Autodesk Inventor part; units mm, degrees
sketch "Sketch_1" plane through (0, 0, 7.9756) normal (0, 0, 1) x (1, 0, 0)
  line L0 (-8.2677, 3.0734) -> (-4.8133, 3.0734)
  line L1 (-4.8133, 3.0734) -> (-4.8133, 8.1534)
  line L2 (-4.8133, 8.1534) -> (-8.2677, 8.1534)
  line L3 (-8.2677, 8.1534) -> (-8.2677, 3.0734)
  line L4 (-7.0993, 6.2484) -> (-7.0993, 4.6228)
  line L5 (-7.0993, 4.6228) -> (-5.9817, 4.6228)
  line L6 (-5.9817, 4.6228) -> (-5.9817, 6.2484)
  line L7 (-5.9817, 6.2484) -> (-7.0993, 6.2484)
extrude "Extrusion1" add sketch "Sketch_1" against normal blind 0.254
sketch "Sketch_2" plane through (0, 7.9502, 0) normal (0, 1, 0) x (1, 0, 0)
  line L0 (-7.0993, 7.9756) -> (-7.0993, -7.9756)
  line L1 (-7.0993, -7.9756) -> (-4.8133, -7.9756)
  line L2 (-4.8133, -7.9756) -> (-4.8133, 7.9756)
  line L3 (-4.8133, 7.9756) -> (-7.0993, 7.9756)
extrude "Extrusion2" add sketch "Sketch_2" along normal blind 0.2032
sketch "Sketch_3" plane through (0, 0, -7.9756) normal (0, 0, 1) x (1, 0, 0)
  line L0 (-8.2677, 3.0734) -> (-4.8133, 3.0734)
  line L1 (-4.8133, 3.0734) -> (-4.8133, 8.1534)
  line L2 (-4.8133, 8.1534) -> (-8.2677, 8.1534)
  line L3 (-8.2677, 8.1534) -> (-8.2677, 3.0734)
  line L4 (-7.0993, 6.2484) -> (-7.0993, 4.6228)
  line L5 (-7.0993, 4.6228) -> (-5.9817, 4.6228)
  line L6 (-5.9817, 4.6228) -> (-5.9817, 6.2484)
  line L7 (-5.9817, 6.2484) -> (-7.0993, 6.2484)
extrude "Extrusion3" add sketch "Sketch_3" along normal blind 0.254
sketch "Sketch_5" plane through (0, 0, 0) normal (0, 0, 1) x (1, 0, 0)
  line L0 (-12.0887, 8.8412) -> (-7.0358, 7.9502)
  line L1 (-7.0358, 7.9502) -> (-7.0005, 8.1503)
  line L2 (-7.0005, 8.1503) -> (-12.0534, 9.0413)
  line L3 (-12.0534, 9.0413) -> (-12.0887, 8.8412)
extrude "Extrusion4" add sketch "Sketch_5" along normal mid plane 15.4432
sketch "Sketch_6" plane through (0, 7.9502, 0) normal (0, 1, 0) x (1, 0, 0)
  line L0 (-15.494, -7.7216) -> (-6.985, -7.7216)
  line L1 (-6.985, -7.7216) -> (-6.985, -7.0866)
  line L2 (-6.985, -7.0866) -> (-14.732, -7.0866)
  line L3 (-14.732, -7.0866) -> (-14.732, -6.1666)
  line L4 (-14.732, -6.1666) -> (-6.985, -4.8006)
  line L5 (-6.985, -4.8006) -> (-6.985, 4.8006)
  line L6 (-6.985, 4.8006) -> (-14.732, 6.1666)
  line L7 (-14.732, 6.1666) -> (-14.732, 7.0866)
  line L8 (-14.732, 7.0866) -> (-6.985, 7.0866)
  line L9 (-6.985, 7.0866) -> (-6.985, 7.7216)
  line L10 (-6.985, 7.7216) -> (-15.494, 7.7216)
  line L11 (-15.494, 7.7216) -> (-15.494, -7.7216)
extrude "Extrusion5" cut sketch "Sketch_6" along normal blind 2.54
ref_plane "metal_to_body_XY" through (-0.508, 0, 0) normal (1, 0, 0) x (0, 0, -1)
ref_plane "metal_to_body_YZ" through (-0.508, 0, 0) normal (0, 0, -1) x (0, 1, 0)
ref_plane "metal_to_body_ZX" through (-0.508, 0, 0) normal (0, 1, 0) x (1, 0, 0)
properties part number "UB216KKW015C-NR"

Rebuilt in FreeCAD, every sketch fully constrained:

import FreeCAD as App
import Part
import Sketcher

V = App.Vector
Q = App.Units.Quantity

doc = App.newDocument("Part")
body = doc.addObject("PartDesign::Body", "Body")

# Sketch on XY plane
sketch1 = body.newObject("Sketcher::SketchObject", "Sketch")
sketch1.AttachmentSupport = (doc.getObject("XY_Plane"), [""])
sketch1.MapMode = "FlatFace"
sketch1.AttachmentOffset = App.Placement(V(0, 0, 0.314 * 25.4), App.Rotation())
sketch1.addGeometry([
    Part.LineSegment(V(-8.3, 8.2, 0), V(-8.3, 3.1, 0)),  # 0
    Part.LineSegment(V(-8.3, 3.1, 0), V(-4.8, 3.1, 0)),  # 1
    Part.LineSegment(V(-4.8, 3.1, 0), V(-4.8, 8.2, 0)),  # 2
    Part.LineSegment(V(-4.8, 8.2, 0), V(-8.3, 8.2, 0)),  # 3
    Part.LineSegment(V(-7.1, 4.6, 0), V(-7.1, 6.2, 0)),  # 4
    Part.LineSegment(V(-7.1, 6.2, 0), V(-6, 6.2, 0)),  # 5
    Part.LineSegment(V(-6, 6.2, 0), V(-6, 4.6, 0)),  # 6
    Part.LineSegment(V(-6, 4.6, 0), V(-7.1, 4.6, 0)),  # 7
], False)
sketch1.addConstraint([
    Sketcher.Constraint("Coincident", 0, 2, 1, 1),
    Sketcher.Constraint("Coincident", 1, 2, 2, 1),
    Sketcher.Constraint("Coincident", 2, 2, 3, 1),
    Sketcher.Constraint("Coincident", 3, 2, 0, 1),
    Sketcher.Constraint("Coincident", 4, 2, 5, 1),
    Sketcher.Constraint("Coincident", 5, 2, 6, 1),
    Sketcher.Constraint("Coincident", 6, 2, 7, 1),
    Sketcher.Constraint("Coincident", 7, 2, 4, 1),
    Sketcher.Constraint("Vertical", 0),
    Sketcher.Constraint("Horizontal", 1),
    Sketcher.Constraint("Vertical", 2),
    Sketcher.Constraint("Horizontal", 3),
    Sketcher.Constraint("Vertical", 4),
    Sketcher.Constraint("Horizontal", 5),
    Sketcher.Constraint("Vertical", 6),
    Sketcher.Constraint("Horizontal", 7),
    Sketcher.Constraint("DistanceY", 0, 2, 0, 1, Q("0.2 in")),
    Sketcher.Constraint("DistanceX", 1, 1, 1, 2, Q("0.136 in")),
    Sketcher.Constraint("DistanceX", 5, 1, 5, 2, Q("0.044 in")),
    Sketcher.Constraint("DistanceY", 4, 1, 4, 2, Q("0.064 in")),
    Sketcher.Constraint("DistanceX", 4, 2, 2, 2, Q("0.09 in")),
    Sketcher.Constraint("DistanceY", -1, 1, 0, 2, Q("0.121 in")),
    Sketcher.Constraint("DistanceY", -1, 1, 4, 2, Q("0.246 in")),
    Sketcher.Constraint("DistanceX", 0, 2, -1, 1, Q("0.3255 in")),
])
pad1 = body.newObject("PartDesign::Pad", "Pad")
pad1.Profile = sketch1
pad1.Length = Q("0.01 in")
pad1.Reversed = True

# Sketch on XZ plane
sketch2 = body.newObject("Sketcher::SketchObject", "Sketch001")
sketch2.AttachmentSupport = (doc.getObject("XZ_Plane"), [""])
sketch2.MapMode = "FlatFace"
sketch2.AttachmentOffset = App.Placement(V(0, 0, -0.313 * 25.4), App.Rotation())
sketch2.addGeometry([
    Part.LineSegment(V(-4.8, -8, 0), V(-7.1, -8, 0)),
    Part.LineSegment(V(-7.1, -8, 0), V(-7.1, 8, 0)),
    Part.LineSegment(V(-7.1, 8, 0), V(-4.8, 8, 0)),
    Part.LineSegment(V(-4.8, 8, 0), V(-4.8, -8, 0)),
], False)
sketch2.addConstraint([
    Sketcher.Constraint("Coincident", 0, 2, 1, 1),
    Sketcher.Constraint("Coincident", 1, 2, 2, 1),
    Sketcher.Constraint("Coincident", 2, 2, 3, 1),
    Sketcher.Constraint("Coincident", 3, 2, 0, 1),
    Sketcher.Constraint("Horizontal", 0),
    Sketcher.Constraint("Vertical", 1),
    Sketcher.Constraint("Horizontal", 2),
    Sketcher.Constraint("Vertical", 3),
    Sketcher.Constraint("DistanceX", 0, 2, 0, 1, Q("0.09 in")),
    Sketcher.Constraint("DistanceY", 1, 1, 1, 2, Q("0.628 in")),
    Sketcher.Constraint("DistanceY", 0, 2, -1, 1, Q("0.314 in")),
    Sketcher.Constraint("DistanceX", 0, 2, -1, 1, Q("0.2795 in")),
])
pad2 = body.newObject("PartDesign::Pad", "Pad001")
pad2.Profile = sketch2
pad2.Length = Q("0.008 in")
pad2.Reversed = True

# Sketch on XY plane
sketch3 = body.newObject("Sketcher::SketchObject", "Sketch002")
sketch3.AttachmentSupport = (doc.getObject("XY_Plane"), [""])
sketch3.MapMode = "FlatFace"
sketch3.AttachmentOffset = App.Placement(V(0, 0, -0.314 * 25.4), App.Rotation())
sketch3.addGeometry([
    Part.LineSegment(V(-8.3, 8.2, 0), V(-8.3, 3.1, 0)),  # 0
    Part.LineSegment(V(-8.3, 3.1, 0), V(-4.8, 3.1, 0)),  # 1
    Part.LineSegment(V(-4.8, 3.1, 0), V(-4.8, 8.2, 0)),  # 2
    Part.LineSegment(V(-4.8, 8.2, 0), V(-8.3, 8.2, 0)),  # 3
    Part.LineSegment(V(-7.1, 4.6, 0), V(-7.1, 6.2, 0)),  # 4
    Part.LineSegment(V(-7.1, 6.2, 0), V(-6, 6.2, 0)),  # 5
    Part.LineSegment(V(-6, 6.2, 0), V(-6, 4.6, 0)),  # 6
    Part.LineSegment(V(-6, 4.6, 0), V(-7.1, 4.6, 0)),  # 7
], False)
sketch3.addConstraint([
    Sketcher.Constraint("Coincident", 0, 2, 1, 1),
    Sketcher.Constraint("Coincident", 1, 2, 2, 1),
    Sketcher.Constraint("Coincident", 2, 2, 3, 1),
    Sketcher.Constraint("Coincident", 3, 2, 0, 1),
    Sketcher.Constraint("Coincident", 4, 2, 5, 1),
    Sketcher.Constraint("Coincident", 5, 2, 6, 1),
    Sketcher.Constraint("Coincident", 6, 2, 7, 1),
    Sketcher.Constraint("Coincident", 7, 2, 4, 1),
    Sketcher.Constraint("Vertical", 0),
    Sketcher.Constraint("Horizontal", 1),
    Sketcher.Constraint("Vertical", 2),
    Sketcher.Constraint("Horizontal", 3),
    Sketcher.Constraint("Vertical", 4),
    Sketcher.Constraint("Horizontal", 5),
    Sketcher.Constraint("Vertical", 6),
    Sketcher.Constraint("Horizontal", 7),
    Sketcher.Constraint("DistanceY", 0, 2, 0, 1, Q("0.2 in")),
    Sketcher.Constraint("DistanceX", 1, 1, 1, 2, Q("0.136 in")),
    Sketcher.Constraint("DistanceX", 5, 1, 5, 2, Q("0.044 in")),
    Sketcher.Constraint("DistanceY", 4, 1, 4, 2, Q("0.064 in")),
    Sketcher.Constraint("DistanceX", 4, 2, 2, 2, Q("0.09 in")),
    Sketcher.Constraint("DistanceY", -1, 1, 0, 2, Q("0.121 in")),
    Sketcher.Constraint("DistanceY", -1, 1, 4, 2, Q("0.246 in")),
    Sketcher.Constraint("DistanceX", 0, 2, -1, 1, Q("0.3255 in")),
])
pad3 = body.newObject("PartDesign::Pad", "Pad002")
pad3.Profile = sketch3
pad3.Length = Q("0.01 in")

# Sketch on XY plane
sketch4 = body.newObject("Sketcher::SketchObject", "Sketch003")
sketch4.AttachmentSupport = (doc.getObject("XY_Plane"), [""])
sketch4.MapMode = "FlatFace"
sketch4.addGeometry([
    Part.LineSegment(V(-12.05, 9.04, 0), V(-12.09, 8.84, 0)),
    Part.LineSegment(V(-12.09, 8.84, 0), V(-7.04, 7.95, 0)),
    Part.LineSegment(V(-7.04, 7.95, 0), V(-7, 8.15, 0)),
    Part.LineSegment(V(-7, 8.15, 0), V(-12.05, 9.04, 0)),
], False)
sketch4.addConstraint([
    Sketcher.Constraint("Coincident", 0, 2, 1, 1),
    Sketcher.Constraint("Coincident", 1, 2, 2, 1),
    Sketcher.Constraint("Coincident", 2, 2, 3, 1),
    Sketcher.Constraint("Coincident", 3, 2, 0, 1),
    Sketcher.Constraint("Perpendicular", 0, 1),
    Sketcher.Constraint("Perpendicular", 1, 2),
    Sketcher.Constraint("Perpendicular", 2, 3),
    Sketcher.Constraint("Angle", 1, Q("-10.0004 deg")),
    Sketcher.Constraint("Distance", 0, Q("0.008 in")),
    Sketcher.Constraint("Distance", 1, Q("0.202 in")),
    Sketcher.Constraint("DistanceX", 1, 2, -1, 1, Q("0.277 in")),
    Sketcher.Constraint("DistanceY", -1, 1, 1, 2, Q("0.313 in")),
])
pad4 = body.newObject("PartDesign::Pad", "Pad003")
pad4.Profile = sketch4
pad4.Length = Q("0.608 in")
pad4.Midplane = True

# Sketch on XZ plane
sketch5 = body.newObject("Sketcher::SketchObject", "Sketch004")
sketch5.AttachmentSupport = (doc.getObject("XZ_Plane"), [""])
sketch5.MapMode = "FlatFace"
sketch5.AttachmentOffset = App.Placement(V(0, 0, -0.313 * 25.4), App.Rotation())
sketch5.addGeometry([
    Part.LineSegment(V(-15.5, -7.7, 0), V(-15.5, 7.7, 0)),  # 0
    Part.LineSegment(V(-15.5, 7.7, 0), V(-7, 7.7, 0)),  # 1
    Part.LineSegment(V(-7, 7.7, 0), V(-7, 7.1, 0)),  # 2
    Part.LineSegment(V(-7, 7.1, 0), V(-14.7, 7.1, 0)),  # 3
    Part.LineSegment(V(-14.7, 7.1, 0), V(-14.7, 6.2, 0)),  # 4
    Part.LineSegment(V(-14.7, 6.2, 0), V(-7, 4.8, 0)),  # 5
    Part.LineSegment(V(-7, 4.8, 0), V(-7, -4.8, 0)),  # 6
    Part.LineSegment(V(-7, -4.8, 0), V(-14.7, -6.2, 0)),  # 7
    Part.LineSegment(V(-14.7, -6.2, 0), V(-14.7, -7.1, 0)),  # 8
    Part.LineSegment(V(-14.7, -7.1, 0), V(-7, -7.1, 0)),  # 9
    Part.LineSegment(V(-7, -7.1, 0), V(-7, -7.7, 0)),  # 10
    Part.LineSegment(V(-7, -7.7, 0), V(-15.5, -7.7, 0)),  # 11
], False)
sketch5.addConstraint([
    Sketcher.Constraint("Coincident", 0, 2, 1, 1),
    Sketcher.Constraint("Coincident", 1, 2, 2, 1),
    Sketcher.Constraint("Coincident", 2, 2, 3, 1),
    Sketcher.Constraint("Coincident", 3, 2, 4, 1),
    Sketcher.Constraint("Coincident", 4, 2, 5, 1),
    Sketcher.Constraint("Coincident", 5, 2, 6, 1),
    Sketcher.Constraint("Coincident", 6, 2, 7, 1),
    Sketcher.Constraint("Coincident", 7, 2, 8, 1),
    Sketcher.Constraint("Coincident", 8, 2, 9, 1),
    Sketcher.Constraint("Coincident", 9, 2, 10, 1),
    Sketcher.Constraint("Coincident", 10, 2, 11, 1),
    Sketcher.Constraint("Coincident", 11, 2, 0, 1),
    Sketcher.Constraint("Vertical", 0),
    Sketcher.Constraint("Horizontal", 1),
    Sketcher.Constraint("Vertical", 2),
    Sketcher.Constraint("Horizontal", 3),
    Sketcher.Constraint("Vertical", 4),
    Sketcher.Constraint("Vertical", 6),
    Sketcher.Constraint("Vertical", 8),
    Sketcher.Constraint("Horizontal", 9),
    Sketcher.Constraint("Vertical", 10),
    Sketcher.Constraint("Horizontal", 11),
    Sketcher.Constraint("Symmetric", 4, 2, 7, 2, -1),
    Sketcher.Constraint("Symmetric", 2, 2, 9, 2, -1),
    Sketcher.Constraint("Vertical", 2, 2, 5, 2),
    Sketcher.Constraint("Equal", 2, 10),
    Sketcher.Constraint("Equal", 5, 7),
    Sketcher.Constraint("Angle", 5, Q("-10 deg")),
    Sketcher.Constraint("DistanceX", 1, 1, 1, 2, Q("0.335 in")),
    Sketcher.Constraint("DistanceX", 3, 2, 3, 1, Q("0.305 in")),
    Sketcher.Constraint("DistanceY", 0, 1, 0, 2, Q("0.608 in")),
    Sketcher.Constraint("DistanceY", 2, 2, 2, 1, Q("0.025 in")),
    Sketcher.Constraint("DistanceY", 6, 2, 6, 1, Q("0.378 in")),
    Sketcher.Constraint("DistanceX", 0, 2, -1, 1, Q("0.61 in")),
])
pocket1 = body.newObject("PartDesign::Pocket", "Pocket")
pocket1.Profile = sketch5
pocket1.Length = Q("0.1 in")

doc.recompute()
